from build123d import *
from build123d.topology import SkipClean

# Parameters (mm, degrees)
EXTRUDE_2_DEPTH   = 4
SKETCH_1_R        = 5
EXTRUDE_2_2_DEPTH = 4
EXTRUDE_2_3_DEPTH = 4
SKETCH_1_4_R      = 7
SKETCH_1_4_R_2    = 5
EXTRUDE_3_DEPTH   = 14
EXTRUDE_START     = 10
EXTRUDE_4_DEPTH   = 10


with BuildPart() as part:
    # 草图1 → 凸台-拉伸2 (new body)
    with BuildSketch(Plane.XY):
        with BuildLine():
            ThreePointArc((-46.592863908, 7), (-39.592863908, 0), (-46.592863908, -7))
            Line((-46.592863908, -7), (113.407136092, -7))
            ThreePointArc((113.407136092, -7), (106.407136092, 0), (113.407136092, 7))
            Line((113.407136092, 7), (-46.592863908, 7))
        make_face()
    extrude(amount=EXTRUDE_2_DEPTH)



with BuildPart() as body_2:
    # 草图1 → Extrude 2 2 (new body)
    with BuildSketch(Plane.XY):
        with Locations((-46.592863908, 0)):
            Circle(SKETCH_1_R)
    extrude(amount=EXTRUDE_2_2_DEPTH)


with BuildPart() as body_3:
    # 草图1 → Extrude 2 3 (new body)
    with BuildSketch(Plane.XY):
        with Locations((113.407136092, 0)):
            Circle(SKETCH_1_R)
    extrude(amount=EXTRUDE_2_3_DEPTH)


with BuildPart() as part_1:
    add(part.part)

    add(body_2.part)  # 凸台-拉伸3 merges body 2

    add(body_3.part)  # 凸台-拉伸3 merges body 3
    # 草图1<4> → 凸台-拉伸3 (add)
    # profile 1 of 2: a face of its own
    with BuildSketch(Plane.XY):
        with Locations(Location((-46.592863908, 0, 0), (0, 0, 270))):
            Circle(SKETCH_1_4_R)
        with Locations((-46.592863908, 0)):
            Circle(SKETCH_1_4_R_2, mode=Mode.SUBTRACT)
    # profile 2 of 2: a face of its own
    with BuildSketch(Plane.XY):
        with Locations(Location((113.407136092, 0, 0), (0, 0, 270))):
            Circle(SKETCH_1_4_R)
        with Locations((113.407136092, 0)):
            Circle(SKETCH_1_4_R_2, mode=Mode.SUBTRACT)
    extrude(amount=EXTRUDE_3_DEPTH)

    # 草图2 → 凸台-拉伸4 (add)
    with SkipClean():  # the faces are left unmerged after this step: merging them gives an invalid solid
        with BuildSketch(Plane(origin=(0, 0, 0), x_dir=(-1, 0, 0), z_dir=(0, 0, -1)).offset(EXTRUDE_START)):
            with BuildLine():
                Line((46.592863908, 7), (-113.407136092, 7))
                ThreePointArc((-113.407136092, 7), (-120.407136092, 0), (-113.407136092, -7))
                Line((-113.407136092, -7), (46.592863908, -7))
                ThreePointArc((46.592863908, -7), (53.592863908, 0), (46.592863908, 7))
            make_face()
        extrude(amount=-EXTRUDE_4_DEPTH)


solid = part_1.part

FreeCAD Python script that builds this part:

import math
import FreeCAD as App
import Part
import Sketcher

V = App.Vector
Q = App.Units.Quantity

doc = App.newDocument("Part")
body = doc.addObject("PartDesign::Body", "Body")

# Sketch on XY plane
sketch1 = body.newObject("Sketcher::SketchObject", "Sketch")
sketch1.AttachmentSupport = (doc.getObject("XY_Plane"), [""])
sketch1.MapMode = "FlatFace"
sketch1.addGeometry([
    Part.ArcOfCircle(Part.Circle(V(-46.592864, 0, 0), V(0, 0, 1), 7), math.radians(-90), math.radians(90)),
    Part.LineSegment(V(-46.592864, -7, 0), V(113.407136, -7, 0)),
    Part.ArcOfCircle(Part.Circle(V(113.407136, 0, 0), V(0, 0, 1), 7), math.radians(90), math.radians(270)),
    Part.LineSegment(V(113.407136, 7, 0), V(-46.592864, 7, 0)),
], False)
sketch1.addConstraint([
    Sketcher.Constraint("Tangent", 0, 1, 1, 1),
    Sketcher.Constraint("Tangent", 1, 2, 2, 2),
    Sketcher.Constraint("Tangent", 2, 1, 3, 1),
    Sketcher.Constraint("Tangent", 3, 2, 0, 2),
    Sketcher.Constraint("Horizontal", 1),
    Sketcher.Constraint("Horizontal", 3),
    Sketcher.Constraint("PointOnObject", 0, 3, -1),
    Sketcher.Constraint("Radius", 0, Q("7 mm")),
    Sketcher.Constraint("DistanceX", 1, 1, 1, 2, Q("160 mm")),
    Sketcher.Constraint("DistanceX", 0, 3, -1, 1, Q("46.592864 mm")),
])
pad1 = body.newObject("PartDesign::Pad", "Pad")
pad1.Profile = sketch1
pad1.Length = 4
body2 = doc.addObject("PartDesign::Body", "Body001")

# Sketch on XY plane
sketch2 = body2.newObject("Sketcher::SketchObject", "Sketch001")
sketch2.AttachmentSupport = (doc.getObject("XY_Plane001"), [""])
sketch2.MapMode = "FlatFace"
sketch2.addGeometry(Part.Circle(V(-46.592864, 0, 0), V(0, 0, 1), 5), False)
sketch2.addConstraint([
    Sketcher.Constraint("PointOnObject", 0, 3, -1),
    Sketcher.Constraint("Diameter", 0, Q("10 mm")),
    Sketcher.Constraint("DistanceX", 0, 3, -1, 1, Q("46.592864 mm")),
])
pad2 = body2.newObject("PartDesign::Pad", "Pad001")
pad2.Profile = sketch2
pad2.Length = 4
body3 = doc.addObject("PartDesign::Body", "Body002")

# Sketch on XY plane
sketch3 = body3.newObject("Sketcher::SketchObject", "Sketch002")
sketch3.AttachmentSupport = (doc.getObject("XY_Plane002"), [""])
sketch3.MapMode = "FlatFace"
sketch3.addGeometry(Part.Circle(V(113.407136, 0, 0), V(0, 0, 1), 5), False)
sketch3.addConstraint([
    Sketcher.Constraint("PointOnObject", 0, 3, -1),
    Sketcher.Constraint("Diameter", 0, Q("10 mm")),
    Sketcher.Constraint("DistanceX", -1, 1, 0, 3, Q("113.407136 mm")),
])
pad3 = body3.newObject("PartDesign::Pad", "Pad002")
pad3.Profile = sketch3
pad3.Length = 4
body.AllowCompound = True
doc.recompute()

boolean = body.newObject("PartDesign::Boolean", "Boolean")
boolean.Type = "Fuse"
boolean.addObjects([body2])
doc.recompute()

boolean2 = body.newObject("PartDesign::Boolean", "Boolean001")
boolean2.Type = "Fuse"
boolean2.addObjects([body3])

# Sketch on XY plane
sketch4 = body.newObject("Sketcher::SketchObject", "Sketch003")
sketch4.AttachmentSupport = (doc.getObject("XY_Plane"), [""])
sketch4.MapMode = "FlatFace"
sketch4.addGeometry([
    Part.Circle(V(-46.592864, 0, 0), V(0, 0, 1), 7),
    Part.Circle(V(-46.592864, 0, 0), V(0, 0, 1), 5),
    Part.Circle(V(113.407136, 0, 0), V(0, 0, 1), 7),
    Part.Circle(V(113.407136, 0, 0), V(0, 0, 1), 5),
], False)
sketch4.addConstraint([
    Sketcher.Constraint("Coincident", 1, 3, 0, 3),
    Sketcher.Constraint("Coincident", 3, 3, 2, 3),
    Sketcher.Constraint("Equal", 0, 2),
    Sketcher.Constraint("Equal", 1, 3),
    Sketcher.Constraint("PointOnObject", 0, 3, -1),
    Sketcher.Constraint("PointOnObject", 2, 3, -1),
    Sketcher.Constraint("Diameter", 0, Q("14 mm")),
    Sketcher.Constraint("Diameter", 1, Q("10 mm")),
    Sketcher.Constraint("DistanceX", 0, 3, 2, 3, Q("160 mm")),
    Sketcher.Constraint("DistanceX", 0, 3, -1, 1, Q("46.592864 mm")),
])
pad4 = body.newObject("PartDesign::Pad", "Pad003")
pad4.Profile = sketch4
pad4.Length = 14

# Sketch on XY plane
sketch5 = body.newObject("Sketcher::SketchObject", "Sketch004")
sketch5.AttachmentSupport = (doc.getObject("XY_Plane"), [""])
sketch5.MapMode = "FlatFace"
sketch5.AttachmentOffset = App.Placement(V(0, 0, -10), App.Rotation())
sketch5.addGeometry([
    Part.LineSegment(V(-46.592864, 7, 0), V(113.407136, 7, 0)),
    Part.ArcOfCircle(Part.Circle(V(113.407136, 0, 0), V(0, 0, 1), 7), math.radians(-90), math.radians(90)),
    Part.LineSegment(V(113.407136, -7, 0), V(-46.592864, -7, 0)),
    Part.ArcOfCircle(Part.Circle(V(-46.592864, 0, 0), V(0, 0, 1), 7), math.radians(90), math.radians(270)),
], False)
sketch5.addConstraint([
    Sketcher.Constraint("Tangent", 0, 2, 1, 2),
    Sketcher.Constraint("Tangent", 1, 1, 2, 1),
    Sketcher.Constraint("Tangent", 2, 2, 3, 2),
    Sketcher.Constraint("Tangent", 3, 1, 0, 1),
    Sketcher.Constraint("Horizontal", 0),
    Sketcher.Constraint("Horizontal", 2),
    Sketcher.Constraint("PointOnObject", 1, 3, -1),
    Sketcher.Constraint("Radius", 1, Q("7 mm")),
    Sketcher.Constraint("DistanceX", 0, 1, 0, 2, Q("160 mm")),
    Sketcher.Constraint("DistanceX", -1, 1, 1, 3, Q("113.407136 mm")),
])
pad5 = body.newObject("PartDesign::Pad", "Pad004")
pad5.Profile = sketch5
pad5.Length = 10

doc.recompute()
